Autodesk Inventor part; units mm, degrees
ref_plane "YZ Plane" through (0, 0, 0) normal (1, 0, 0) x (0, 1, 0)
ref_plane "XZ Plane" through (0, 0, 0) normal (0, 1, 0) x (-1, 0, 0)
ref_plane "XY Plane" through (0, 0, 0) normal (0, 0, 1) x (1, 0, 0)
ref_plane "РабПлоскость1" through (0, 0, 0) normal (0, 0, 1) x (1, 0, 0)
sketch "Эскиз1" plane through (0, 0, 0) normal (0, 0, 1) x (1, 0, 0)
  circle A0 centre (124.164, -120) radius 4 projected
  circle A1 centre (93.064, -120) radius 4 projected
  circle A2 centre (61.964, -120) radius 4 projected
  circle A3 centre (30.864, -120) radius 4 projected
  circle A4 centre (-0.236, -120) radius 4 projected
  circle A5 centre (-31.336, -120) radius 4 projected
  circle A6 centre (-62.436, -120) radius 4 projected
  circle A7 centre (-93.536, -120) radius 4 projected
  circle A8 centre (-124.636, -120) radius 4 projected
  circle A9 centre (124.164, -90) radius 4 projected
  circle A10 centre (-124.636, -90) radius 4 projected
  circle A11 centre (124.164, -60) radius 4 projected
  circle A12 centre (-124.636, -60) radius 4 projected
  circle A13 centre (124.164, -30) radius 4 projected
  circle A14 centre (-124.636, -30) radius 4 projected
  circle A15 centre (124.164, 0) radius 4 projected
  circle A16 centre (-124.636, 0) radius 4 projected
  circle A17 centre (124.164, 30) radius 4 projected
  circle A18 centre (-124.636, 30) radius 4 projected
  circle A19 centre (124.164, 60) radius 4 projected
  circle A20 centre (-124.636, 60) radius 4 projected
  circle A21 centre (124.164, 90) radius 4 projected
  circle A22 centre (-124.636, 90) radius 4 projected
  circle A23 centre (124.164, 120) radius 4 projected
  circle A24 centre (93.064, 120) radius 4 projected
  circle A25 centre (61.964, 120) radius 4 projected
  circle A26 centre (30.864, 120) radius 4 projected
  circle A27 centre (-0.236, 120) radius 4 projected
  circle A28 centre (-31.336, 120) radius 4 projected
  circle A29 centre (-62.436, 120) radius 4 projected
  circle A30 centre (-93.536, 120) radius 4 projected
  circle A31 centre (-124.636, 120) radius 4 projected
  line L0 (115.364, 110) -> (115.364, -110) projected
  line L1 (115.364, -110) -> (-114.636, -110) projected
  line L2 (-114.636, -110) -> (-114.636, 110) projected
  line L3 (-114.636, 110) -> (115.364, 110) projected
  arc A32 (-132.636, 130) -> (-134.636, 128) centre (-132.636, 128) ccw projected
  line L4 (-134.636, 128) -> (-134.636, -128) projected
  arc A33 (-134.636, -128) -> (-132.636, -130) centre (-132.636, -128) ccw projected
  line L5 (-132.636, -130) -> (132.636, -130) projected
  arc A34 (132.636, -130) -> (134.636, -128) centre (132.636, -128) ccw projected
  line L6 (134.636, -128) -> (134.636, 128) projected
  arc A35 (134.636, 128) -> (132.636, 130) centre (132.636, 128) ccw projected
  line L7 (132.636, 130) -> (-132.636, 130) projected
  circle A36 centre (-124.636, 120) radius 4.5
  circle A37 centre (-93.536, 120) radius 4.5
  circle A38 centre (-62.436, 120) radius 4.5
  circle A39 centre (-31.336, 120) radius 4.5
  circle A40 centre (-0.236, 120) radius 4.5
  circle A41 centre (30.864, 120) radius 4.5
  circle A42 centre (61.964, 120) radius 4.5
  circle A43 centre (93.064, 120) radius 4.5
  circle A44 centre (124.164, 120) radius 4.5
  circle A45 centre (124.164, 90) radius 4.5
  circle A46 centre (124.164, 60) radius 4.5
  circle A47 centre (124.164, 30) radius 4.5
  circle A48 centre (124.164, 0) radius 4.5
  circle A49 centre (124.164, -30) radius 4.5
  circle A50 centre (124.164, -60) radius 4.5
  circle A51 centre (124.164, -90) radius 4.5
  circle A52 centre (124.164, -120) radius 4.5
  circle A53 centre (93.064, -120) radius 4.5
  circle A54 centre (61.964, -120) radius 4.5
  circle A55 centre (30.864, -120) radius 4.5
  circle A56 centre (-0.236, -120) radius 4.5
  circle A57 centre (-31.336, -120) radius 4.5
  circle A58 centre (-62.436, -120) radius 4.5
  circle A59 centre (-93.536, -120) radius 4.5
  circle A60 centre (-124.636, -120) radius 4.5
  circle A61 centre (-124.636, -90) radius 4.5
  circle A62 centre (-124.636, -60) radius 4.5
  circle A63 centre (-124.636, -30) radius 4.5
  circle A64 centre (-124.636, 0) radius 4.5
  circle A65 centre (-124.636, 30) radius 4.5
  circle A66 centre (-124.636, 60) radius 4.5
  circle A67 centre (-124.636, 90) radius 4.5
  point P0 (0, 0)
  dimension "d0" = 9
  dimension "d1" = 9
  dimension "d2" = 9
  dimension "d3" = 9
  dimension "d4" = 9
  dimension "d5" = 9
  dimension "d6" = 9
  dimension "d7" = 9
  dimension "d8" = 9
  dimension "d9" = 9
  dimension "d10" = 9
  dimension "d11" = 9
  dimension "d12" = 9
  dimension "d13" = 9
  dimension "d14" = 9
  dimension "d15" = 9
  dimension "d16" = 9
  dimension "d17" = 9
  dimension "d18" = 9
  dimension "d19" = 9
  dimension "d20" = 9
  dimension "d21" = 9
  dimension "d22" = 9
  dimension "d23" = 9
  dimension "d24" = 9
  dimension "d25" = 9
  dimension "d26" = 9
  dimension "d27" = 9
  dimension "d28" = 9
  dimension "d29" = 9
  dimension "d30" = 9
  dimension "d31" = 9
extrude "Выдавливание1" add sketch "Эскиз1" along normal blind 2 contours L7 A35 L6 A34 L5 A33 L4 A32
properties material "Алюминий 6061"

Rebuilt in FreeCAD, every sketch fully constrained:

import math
import FreeCAD as App
import Part
import Sketcher
from FreeCAD import Vector

doc = App.newDocument("Part")
body = doc.addObject("PartDesign::Body", "Body")

# Sketch on XY plane
sketch1 = body.newObject("Sketcher::SketchObject", "Sketch")
sketch1.AttachmentSupport = (doc.getObject("XY_Plane"), [""])
sketch1.MapMode = "FlatFace"
sketch1.addGeometry(Part.LineSegment(Vector(132.636, 130, 0), Vector(-132.636, 130, 0)), False)
sketch1.addGeometry(Part.ArcOfCircle(Part.Circle(Vector(-132.636, 128, 0), Vector(0, 0, 1), 2), math.radians(90), math.radians(180)), False)
sketch1.addGeometry(Part.LineSegment(Vector(-134.636, 128, 0), Vector(-134.636, -128, 0)), False)
sketch1.addGeometry(Part.ArcOfCircle(Part.Circle(Vector(-132.636, -128, 0), Vector(0, 0, 1), 2), math.radians(180), math.radians(270)), False)
sketch1.addGeometry(Part.LineSegment(Vector(-132.636, -130, 0), Vector(132.636, -130, 0)), False)
sketch1.addGeometry(Part.ArcOfCircle(Part.Circle(Vector(132.636, -128, 0), Vector(0, 0, 1), 2), math.radians(-90), math.radians(0)), False)
sketch1.addGeometry(Part.LineSegment(Vector(134.636, -128, 0), Vector(134.636, 128, 0)), False)
sketch1.addGeometry(Part.ArcOfCircle(Part.Circle(Vector(132.636, 128, 0), Vector(0, 0, 1), 2), math.radians(0), math.radians(90)), False)
sketch1.addGeometry(Part.Circle(Vector(-124.636, -120, 0), Vector(0, 0, 1), 4.5), False)
sketch1.addGeometry(Part.Circle(Vector(-93.536, -120, 0), Vector(0, 0, 1), 4.5), False)
sketch1.addGeometry(Part.Circle(Vector(-124.636, -90, 0), Vector(0, 0, 1), 4.5), False)
sketch1.addGeometry(Part.Circle(Vector(-62.436, -120, 0), Vector(0, 0, 1), 4.5), False)
sketch1.addGeometry(Part.Circle(Vector(-31.336, -120, 0), Vector(0, 0, 1), 4.5), False)
sketch1.addGeometry(Part.Circle(Vector(-0.236, -120, 0), Vector(0, 0, 1), 4.5), False)
sketch1.addGeometry(Part.Circle(Vector(-124.636, -60, 0), Vector(0, 0, 1), 4.5), False)
sketch1.addGeometry(Part.Circle(Vector(-124.636, -30, 0), Vector(0, 0, 1), 4.5), False)
sketch1.addGeometry(Part.Circle(Vector(30.864, -120, 0), Vector(0, 0, 1), 4.5), False)
sketch1.addGeometry(Part.Circle(Vector(61.964, -120, 0), Vector(0, 0, 1), 4.5), False)
sketch1.addGeometry(Part.Circle(Vector(93.064, -120, 0), Vector(0, 0, 1), 4.5), False)
sketch1.addGeometry(Part.Circle(Vector(124.164, -120, 0), Vector(0, 0, 1), 4.5), False)
sketch1.addGeometry(Part.Circle(Vector(124.164, -90, 0), Vector(0, 0, 1), 4.5), False)
sketch1.addGeometry(Part.Circle(Vector(124.164, -60, 0), Vector(0, 0, 1), 4.5), False)
sketch1.addGeometry(Part.Circle(Vector(124.164, -30, 0), Vector(0, 0, 1), 4.5), False)
sketch1.addGeometry(Part.Circle(Vector(-124.636, 0, 0), Vector(0, 0, 1), 4.5), False)
sketch1.addGeometry(Part.Circle(Vector(-124.636, 30, 0), Vector(0, 0, 1), 4.5), False)
sketch1.addGeometry(Part.Circle(Vector(-124.636, 60, 0), Vector(0, 0, 1), 4.5), False)
sketch1.addGeometry(Part.Circle(Vector(-124.636, 90, 0), Vector(0, 0, 1), 4.5), False)
sketch1.addGeometry(Part.Circle(Vector(-124.636, 120, 0), Vector(0, 0, 1), 4.5), False)
sketch1.addGeometry(Part.Circle(Vector(-93.536, 120, 0), Vector(0, 0, 1), 4.5), False)
sketch1.addGeometry(Part.Circle(Vector(-62.436, 120, 0), Vector(0, 0, 1), 4.5), False)
sketch1.addGeometry(Part.Circle(Vector(-31.336, 120, 0), Vector(0, 0, 1), 4.5), False)
sketch1.addGeometry(Part.Circle(Vector(-0.236, 120, 0), Vector(0, 0, 1), 4.5), False)
sketch1.addGeometry(Part.LineSegment(Vector(-114.636, 110, 0), Vector(115.364, 110, 0)), False)
sketch1.addGeometry(Part.LineSegment(Vector(115.364, 110, 0), Vector(115.364, -110, 0)), False)
sketch1.addGeometry(Part.LineSegment(Vector(115.364, -110, 0), Vector(-114.636, -110, 0)), False)
sketch1.addGeometry(Part.LineSegment(Vector(-114.636, -110, 0), Vector(-114.636, 110, 0)), False)
sketch1.addGeometry(Part.Circle(Vector(124.164, 0, 0), Vector(0, 0, 1), 4.5), False)
sketch1.addGeometry(Part.Circle(Vector(124.164, 30, 0), Vector(0, 0, 1), 4.5), False)
sketch1.addGeometry(Part.Circle(Vector(124.164, 60, 0), Vector(0, 0, 1), 4.5), False)
sketch1.addGeometry(Part.Circle(Vector(30.864, 120, 0), Vector(0, 0, 1), 4.5), False)
sketch1.addGeometry(Part.Circle(Vector(61.964, 120, 0), Vector(0, 0, 1), 4.5), False)
sketch1.addGeometry(Part.Circle(Vector(124.164, 90, 0), Vector(0, 0, 1), 4.5), False)
sketch1.addGeometry(Part.Circle(Vector(93.064, 120, 0), Vector(0, 0, 1), 4.5), False)
sketch1.addGeometry(Part.Circle(Vector(124.164, 120, 0), Vector(0, 0, 1), 4.5), False)
sketch1.addConstraint(Sketcher.Constraint("Tangent", 0, 2, 1, 1))
sketch1.addConstraint(Sketcher.Constraint("Tangent", 1, 2, 2, 1))
sketch1.addConstraint(Sketcher.Constraint("Tangent", 2, 2, 3, 1))
sketch1.addConstraint(Sketcher.Constraint("Tangent", 3, 2, 4, 1))
sketch1.addConstraint(Sketcher.Constraint("Tangent", 4, 2, 5, 1))
sketch1.addConstraint(Sketcher.Constraint("Tangent", 5, 2, 6, 1))
sketch1.addConstraint(Sketcher.Constraint("Tangent", 6, 2, 7, 1))
sketch1.addConstraint(Sketcher.Constraint("Tangent", 7, 2, 0, 1))
sketch1.addConstraint(Sketcher.Constraint("Coincident", 32, 2, 33, 1))
sketch1.addConstraint(Sketcher.Constraint("Coincident", 33, 2, 34, 1))
sketch1.addConstraint(Sketcher.Constraint("Coincident", 34, 2, 35, 1))
sketch1.addConstraint(Sketcher.Constraint("Coincident", 35, 2, 32, 1))
sketch1.addConstraint(Sketcher.Constraint("Horizontal", 0))
sketch1.addConstraint(Sketcher.Constraint("Vertical", 2))
sketch1.addConstraint(Sketcher.Constraint("Horizontal", 4))
sketch1.addConstraint(Sketcher.Constraint("Vertical", 6))
sketch1.addConstraint(Sketcher.Constraint("Horizontal", 32))
sketch1.addConstraint(Sketcher.Constraint("Vertical", 33))
sketch1.addConstraint(Sketcher.Constraint("Horizontal", 34))
sketch1.addConstraint(Sketcher.Constraint("Vertical", 35))
sketch1.addConstraint(Sketcher.Constraint("Equal", 1, 3))
sketch1.addConstraint(Sketcher.Constraint("Equal", 3, 5))
sketch1.addConstraint(Sketcher.Constraint("Equal", 5, 7))
sketch1.addConstraint(Sketcher.Constraint("Equal", 8, 9))
sketch1.addConstraint(Sketcher.Constraint("Equal", 9, 10))
sketch1.addConstraint(Sketcher.Constraint("Equal", 10, 11))
sketch1.addConstraint(Sketcher.Constraint("Equal", 11, 12))
sketch1.addConstraint(Sketcher.Constraint("Equal", 12, 13))
sketch1.addConstraint(Sketcher.Constraint("Equal", 13, 14))
sketch1.addConstraint(Sketcher.Constraint("Equal", 14, 15))
sketch1.addConstraint(Sketcher.Constraint("Equal", 15, 16))
sketch1.addConstraint(Sketcher.Constraint("Equal", 16, 17))
sketch1.addConstraint(Sketcher.Constraint("Equal", 17, 18))
sketch1.addConstraint(Sketcher.Constraint("Equal", 18, 19))
sketch1.addConstraint(Sketcher.Constraint("Equal", 19, 20))
sketch1.addConstraint(Sketcher.Constraint("Equal", 20, 21))
sketch1.addConstraint(Sketcher.Constraint("Equal", 21, 22))
sketch1.addConstraint(Sketcher.Constraint("Equal", 22, 23))
sketch1.addConstraint(Sketcher.Constraint("Equal", 23, 24))
sketch1.addConstraint(Sketcher.Constraint("Equal", 24, 25))
sketch1.addConstraint(Sketcher.Constraint("Equal", 25, 26))
sketch1.addConstraint(Sketcher.Constraint("Equal", 26, 27))
sketch1.addConstraint(Sketcher.Constraint("Equal", 27, 28))
sketch1.addConstraint(Sketcher.Constraint("Equal", 28, 29))
sketch1.addConstraint(Sketcher.Constraint("Equal", 29, 30))
sketch1.addConstraint(Sketcher.Constraint("Equal", 30, 31))
sketch1.addConstraint(Sketcher.Constraint("Equal", 31, 36))
sketch1.addConstraint(Sketcher.Constraint("Equal", 36, 37))
sketch1.addConstraint(Sketcher.Constraint("Equal", 37, 38))
sketch1.addConstraint(Sketcher.Constraint("Equal", 38, 39))
sketch1.addConstraint(Sketcher.Constraint("Equal", 39, 40))
sketch1.addConstraint(Sketcher.Constraint("Equal", 40, 41))
sketch1.addConstraint(Sketcher.Constraint("Equal", 41, 42))
sketch1.addConstraint(Sketcher.Constraint("Equal", 42, 43))
sketch1.addConstraint(Sketcher.Constraint("Symmetric", 1, 3, 5, 3, -1, 1))
sketch1.addConstraint(Sketcher.Constraint("Symmetric", 15, 3, 24, 3, -1))
sketch1.addConstraint(Sketcher.Constraint("Symmetric", 14, 3, 25, 3, -1))
sketch1.addConstraint(Sketcher.Constraint("Symmetric", 10, 3, 26, 3, -1))
sketch1.addConstraint(Sketcher.Constraint("Symmetric", 8, 3, 27, 3, -1))
sketch1.addConstraint(Sketcher.Constraint("Symmetric", 9, 3, 28, 3, -1))
sketch1.addConstraint(Sketcher.Constraint("Symmetric", 11, 3, 29, 3, -1))
sketch1.addConstraint(Sketcher.Constraint("Symmetric", 12, 3, 30, 3, -1))
sketch1.addConstraint(Sketcher.Constraint("Symmetric", 13, 3, 31, 3, -1))
sketch1.addConstraint(Sketcher.Constraint("Symmetric", 22, 3, 37, 3, -1))
sketch1.addConstraint(Sketcher.Constraint("Symmetric", 21, 3, 38, 3, -1))
sketch1.addConstraint(Sketcher.Constraint("Symmetric", 16, 3, 39, 3, -1))
sketch1.addConstraint(Sketcher.Constraint("Symmetric", 17, 3, 40, 3, -1))
sketch1.addConstraint(Sketcher.Constraint("Symmetric", 20, 3, 41, 3, -1))
sketch1.addConstraint(Sketcher.Constraint("Symmetric", 18, 3, 42, 3, -1))
sketch1.addConstraint(Sketcher.Constraint("Symmetric", 19, 3, 43, 3, -1))
sketch1.addConstraint(Sketcher.Constraint("PointOnObject", 23, 3, -1))
sketch1.addConstraint(Sketcher.Constraint("PointOnObject", 36, 3, -1))
sketch1.addConstraint(Sketcher.Constraint("Horizontal", 8, 3, 9, 3))
sketch1.addConstraint(Sketcher.Constraint("Horizontal", 9, 3, 11, 3))
sketch1.addConstraint(Sketcher.Constraint("Horizontal", 11, 3, 12, 3))
sketch1.addConstraint(Sketcher.Constraint("Horizontal", 12, 3, 13, 3))
sketch1.addConstraint(Sketcher.Constraint("Horizontal", 13, 3, 16, 3))
sketch1.addConstraint(Sketcher.Constraint("Horizontal", 16, 3, 17, 3))
sketch1.addConstraint(Sketcher.Constraint("Horizontal", 17, 3, 18, 3))
sketch1.addConstraint(Sketcher.Constraint("Horizontal", 18, 3, 19, 3))
sketch1.addConstraint(Sketcher.Constraint("Horizontal", 10, 3, 20, 3))
sketch1.addConstraint(Sketcher.Constraint("Horizontal", 14, 3, 21, 3))
sketch1.addConstraint(Sketcher.Constraint("Horizontal", 15, 3, 22, 3))
sketch1.addConstraint(Sketcher.Constraint("Vertical", 8, 3, 10, 3))
sketch1.addConstraint(Sketcher.Constraint("Vertical", 10, 3, 14, 3))
sketch1.addConstraint(Sketcher.Constraint("Vertical", 14, 3, 15, 3))
sketch1.addConstraint(Sketcher.Constraint("Vertical", 19, 3, 20, 3))
sketch1.addConstraint(Sketcher.Constraint("Vertical", 20, 3, 21, 3))
sketch1.addConstraint(Sketcher.Constraint("Vertical", 21, 3, 22, 3))
sketch1.addConstraint(Sketcher.Constraint("Vertical", 15, 3, 23, 3))
sketch1.addConstraint(Sketcher.Constraint("Vertical", 22, 3, 36, 3))
sketch1.addConstraint(Sketcher.Constraint("Diameter", 8, 9.0))
sketch1.addConstraint(Sketcher.Constraint("Radius", 1, 2.0))
sketch1.addConstraint(Sketcher.Constraint("DistanceX", 32, 1, 32, 2, 230.0))
sketch1.addConstraint(Sketcher.Constraint("DistanceY", 2, 2, 2, 1, 256.0))
sketch1.addConstraint(Sketcher.Constraint("DistanceY", 33, 2, 33, 1, 220.0))
sketch1.addConstraint(Sketcher.Constraint("DistanceY", 8, 3, -1, 1, 120.0))
sketch1.addConstraint(Sketcher.Constraint("DistanceY", 10, 3, -1, 1, 90.0))
sketch1.addConstraint(Sketcher.Constraint("DistanceY", 14, 3, -1, 1, 60.0))
sketch1.addConstraint(Sketcher.Constraint("DistanceY", 15, 3, -1, 1, 30.0))
sketch1.addConstraint(Sketcher.Constraint("DistanceY", -1, 1, 32, 2, 110.0))
sketch1.addConstraint(Sketcher.Constraint("DistanceX", 3, 3, 8, 3, 8.0))
sketch1.addConstraint(Sketcher.Constraint("DistanceX", 8, 3, 34, 2, 10.0))
sketch1.addConstraint(Sketcher.Constraint("DistanceX", 8, 3, 9, 3, 31.1))
sketch1.addConstraint(Sketcher.Constraint("DistanceX", 9, 3, 11, 3, 31.1))
sketch1.addConstraint(Sketcher.Constraint("DistanceX", 11, 3, 12, 3, 31.1))
sketch1.addConstraint(Sketcher.Constraint("DistanceX", 12, 3, 13, 3, 31.1))
sketch1.addConstraint(Sketcher.Constraint("DistanceX", 13, 3, 16, 3, 31.1))
sketch1.addConstraint(Sketcher.Constraint("DistanceX", 16, 3, 17, 3, 31.1))
sketch1.addConstraint(Sketcher.Constraint("DistanceX", 17, 3, 18, 3, 31.1))
sketch1.addConstraint(Sketcher.Constraint("DistanceX", 18, 3, 19, 3, 31.1))
sketch1.addConstraint(Sketcher.Constraint("DistanceX", 0, 2, 0, 1, 265.272))
pad1 = body.newObject("PartDesign::Pad", "Pad")
pad1.Profile = sketch1
pad1.Length = 2

doc.recompute()
